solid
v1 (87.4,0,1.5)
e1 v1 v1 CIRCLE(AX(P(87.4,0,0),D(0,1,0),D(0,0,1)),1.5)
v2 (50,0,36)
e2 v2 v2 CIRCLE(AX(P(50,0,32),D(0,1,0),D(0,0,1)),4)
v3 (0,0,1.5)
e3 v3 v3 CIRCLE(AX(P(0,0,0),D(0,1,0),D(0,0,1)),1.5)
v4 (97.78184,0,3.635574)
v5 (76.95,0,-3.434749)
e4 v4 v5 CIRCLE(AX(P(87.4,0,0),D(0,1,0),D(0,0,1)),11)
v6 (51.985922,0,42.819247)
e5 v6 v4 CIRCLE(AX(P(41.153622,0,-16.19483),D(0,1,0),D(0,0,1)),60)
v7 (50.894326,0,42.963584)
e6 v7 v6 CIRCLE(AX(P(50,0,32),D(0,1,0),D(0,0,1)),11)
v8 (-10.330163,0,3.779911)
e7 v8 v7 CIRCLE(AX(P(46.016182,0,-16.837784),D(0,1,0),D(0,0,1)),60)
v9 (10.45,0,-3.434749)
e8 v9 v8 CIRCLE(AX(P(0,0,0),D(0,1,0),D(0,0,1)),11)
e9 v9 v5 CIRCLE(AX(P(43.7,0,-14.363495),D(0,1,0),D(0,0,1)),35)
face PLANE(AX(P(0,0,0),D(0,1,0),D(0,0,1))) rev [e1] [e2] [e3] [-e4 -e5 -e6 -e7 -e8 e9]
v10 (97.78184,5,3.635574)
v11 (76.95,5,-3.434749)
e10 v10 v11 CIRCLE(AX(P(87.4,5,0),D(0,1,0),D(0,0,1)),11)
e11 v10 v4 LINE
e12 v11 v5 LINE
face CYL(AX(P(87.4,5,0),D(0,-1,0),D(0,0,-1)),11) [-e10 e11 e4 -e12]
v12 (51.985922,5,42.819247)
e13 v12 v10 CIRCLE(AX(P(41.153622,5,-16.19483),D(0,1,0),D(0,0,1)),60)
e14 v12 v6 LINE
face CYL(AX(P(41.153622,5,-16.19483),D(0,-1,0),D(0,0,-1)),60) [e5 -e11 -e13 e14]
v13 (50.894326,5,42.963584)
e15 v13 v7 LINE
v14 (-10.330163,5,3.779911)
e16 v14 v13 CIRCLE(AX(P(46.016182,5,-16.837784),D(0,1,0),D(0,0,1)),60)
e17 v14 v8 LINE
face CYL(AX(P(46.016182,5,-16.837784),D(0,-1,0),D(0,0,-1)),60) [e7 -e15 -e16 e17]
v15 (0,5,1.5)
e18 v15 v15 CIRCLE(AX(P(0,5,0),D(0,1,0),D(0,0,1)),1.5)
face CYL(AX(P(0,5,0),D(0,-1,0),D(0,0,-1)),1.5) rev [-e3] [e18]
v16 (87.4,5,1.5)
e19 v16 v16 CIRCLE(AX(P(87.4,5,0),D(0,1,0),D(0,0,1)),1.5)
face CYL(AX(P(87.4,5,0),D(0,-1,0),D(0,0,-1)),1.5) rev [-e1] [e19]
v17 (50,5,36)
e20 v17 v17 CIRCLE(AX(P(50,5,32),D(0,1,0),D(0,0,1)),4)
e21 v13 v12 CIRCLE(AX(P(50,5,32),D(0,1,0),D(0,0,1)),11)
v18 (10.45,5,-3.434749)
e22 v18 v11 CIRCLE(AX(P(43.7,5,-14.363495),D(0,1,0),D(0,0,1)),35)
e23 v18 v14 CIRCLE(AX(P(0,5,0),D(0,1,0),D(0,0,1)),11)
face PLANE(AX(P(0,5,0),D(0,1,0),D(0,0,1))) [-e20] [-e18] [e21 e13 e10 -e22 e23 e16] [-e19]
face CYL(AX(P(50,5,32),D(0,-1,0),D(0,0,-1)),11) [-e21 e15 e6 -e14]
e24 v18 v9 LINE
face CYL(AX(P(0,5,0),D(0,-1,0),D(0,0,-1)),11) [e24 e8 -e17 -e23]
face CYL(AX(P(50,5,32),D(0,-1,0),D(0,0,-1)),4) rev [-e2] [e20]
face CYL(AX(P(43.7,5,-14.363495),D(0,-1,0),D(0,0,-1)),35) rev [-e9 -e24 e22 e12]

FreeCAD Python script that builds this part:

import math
import FreeCAD as App
import Part
import Sketcher
from FreeCAD import Vector

doc = App.newDocument("Part")
params = doc.addObject("Spreadsheet::Sheet", "Params")
for row, (alias, value) in enumerate([
    ("sketch1_diameter", "8 mm"),
    ("sketch1_diameter2", "3 mm"),
    ("sketch1_radius", "35 mm"),
    ("sketch1_radius2", "11 mm"),
    ("sketch1_radius3", "60 mm"),
    ("pad1_length", "5 mm"),
], start=1):
    params.set(f"A{row}", alias)
    params.set(f"B{row}", "=" + value)
    params.setAlias(f"B{row}", alias)

body = doc.addObject("PartDesign::Body", "Body")

# Sketch on XZ plane
sketch1 = body.newObject("Sketcher::SketchObject", "Sketch")
sketch1.AttachmentSupport = (doc.getObject("XZ_Plane"), [""])
sketch1.MapMode = "FlatFace"
sketch1.addGeometry(Part.ArcOfCircle(Part.Circle(Vector(43.7, -14.363495, 0), Vector(0, 0, 1), 35), math.radians(18.194872), math.radians(161.805128)), False)
sketch1.addGeometry(Part.ArcOfCircle(Part.Circle(Vector(0, 0, 0), Vector(0, 0, 1), 11), math.radians(159.901918), math.radians(341.805128)), False)
sketch1.addGeometry(Part.ArcOfCircle(Part.Circle(Vector(46.016182, -16.837784, 0), Vector(0, 0, 1), 60), math.radians(85.336568), math.radians(159.901918)), False)
sketch1.addGeometry(Part.ArcOfCircle(Part.Circle(Vector(50, 32, 0), Vector(0, 0, 1), 11), math.radians(79.598882), math.radians(85.336568)), False)
sketch1.addGeometry(Part.ArcOfCircle(Part.Circle(Vector(41.153622, -16.19483, 0), Vector(0, 0, 1), 60), math.radians(19.299535), math.radians(79.598882)), False)
sketch1.addGeometry(Part.ArcOfCircle(Part.Circle(Vector(87.4, 0, 0), Vector(0, 0, 1), 11), math.radians(-161.805128), math.radians(19.299535)), False)
sketch1.addGeometry(Part.Circle(Vector(50, 32, 0), Vector(0, 0, 1), 4), False)
sketch1.addGeometry(Part.Circle(Vector(0, 0, 0), Vector(0, 0, 1), 1.5), False)
sketch1.addGeometry(Part.Circle(Vector(87.4, 0, 0), Vector(0, 0, 1), 1.5), False)
sketch1.addConstraint(Sketcher.Constraint("Tangent", 0, 2, 1, 2))
sketch1.addConstraint(Sketcher.Constraint("Tangent", 1, 1, 2, 2))
sketch1.addConstraint(Sketcher.Constraint("Tangent", 2, 1, 3, 2))
sketch1.addConstraint(Sketcher.Constraint("Tangent", 3, 1, 4, 2))
sketch1.addConstraint(Sketcher.Constraint("Tangent", 4, 1, 5, 2))
sketch1.addConstraint(Sketcher.Constraint("Tangent", 5, 1, 0, 1))
sketch1.addConstraint(Sketcher.Constraint("Coincident", 1, 3, -1, 1))
sketch1.addConstraint(Sketcher.Constraint("Coincident", 7, 3, -1, 1))
sketch1.addConstraint(Sketcher.Constraint("Coincident", 6, 3, 3, 3))
sketch1.addConstraint(Sketcher.Constraint("Coincident", 8, 3, 5, 3))
sketch1.addConstraint(Sketcher.Constraint("Equal", 1, 3))
sketch1.addConstraint(Sketcher.Constraint("Equal", 2, 4))
sketch1.addConstraint(Sketcher.Constraint("Equal", 3, 5))
sketch1.addConstraint(Sketcher.Constraint("Equal", 7, 8))
sketch1.addConstraint(Sketcher.Constraint("PointOnObject", 5, 3, -1))
sketch1.addConstraint(Sketcher.Constraint("Diameter", 6, 8.0))
sketch1.addConstraint(Sketcher.Constraint("Diameter", 7, 3.0))
sketch1.addConstraint(Sketcher.Constraint("Radius", 0, 35.0))
sketch1.addConstraint(Sketcher.Constraint("Radius", 1, 11.0))
sketch1.addConstraint(Sketcher.Constraint("Radius", 2, 60.0))
sketch1.addConstraint(Sketcher.Constraint("DistanceX", -1, 1, 3, 3, 50.0))
sketch1.addConstraint(Sketcher.Constraint("DistanceY", -1, 1, 3, 3, 32.0))
sketch1.addConstraint(Sketcher.Constraint("DistanceX", -1, 1, 0, 3, 43.7))
sketch1.setExpression("Constraints[15]", "Params.sketch1_diameter")
sketch1.setExpression("Constraints[16]", "Params.sketch1_diameter2")
sketch1.setExpression("Constraints[17]", "Params.sketch1_radius")
sketch1.setExpression("Constraints[18]", "Params.sketch1_radius2")
sketch1.setExpression("Constraints[19]", "Params.sketch1_radius3")
pad1 = body.newObject("PartDesign::Pad", "Pad")
pad1.Profile = sketch1
pad1.setExpression("Length", "Params.pad1_length")
pad1.Reversed = True

doc.recompute()
